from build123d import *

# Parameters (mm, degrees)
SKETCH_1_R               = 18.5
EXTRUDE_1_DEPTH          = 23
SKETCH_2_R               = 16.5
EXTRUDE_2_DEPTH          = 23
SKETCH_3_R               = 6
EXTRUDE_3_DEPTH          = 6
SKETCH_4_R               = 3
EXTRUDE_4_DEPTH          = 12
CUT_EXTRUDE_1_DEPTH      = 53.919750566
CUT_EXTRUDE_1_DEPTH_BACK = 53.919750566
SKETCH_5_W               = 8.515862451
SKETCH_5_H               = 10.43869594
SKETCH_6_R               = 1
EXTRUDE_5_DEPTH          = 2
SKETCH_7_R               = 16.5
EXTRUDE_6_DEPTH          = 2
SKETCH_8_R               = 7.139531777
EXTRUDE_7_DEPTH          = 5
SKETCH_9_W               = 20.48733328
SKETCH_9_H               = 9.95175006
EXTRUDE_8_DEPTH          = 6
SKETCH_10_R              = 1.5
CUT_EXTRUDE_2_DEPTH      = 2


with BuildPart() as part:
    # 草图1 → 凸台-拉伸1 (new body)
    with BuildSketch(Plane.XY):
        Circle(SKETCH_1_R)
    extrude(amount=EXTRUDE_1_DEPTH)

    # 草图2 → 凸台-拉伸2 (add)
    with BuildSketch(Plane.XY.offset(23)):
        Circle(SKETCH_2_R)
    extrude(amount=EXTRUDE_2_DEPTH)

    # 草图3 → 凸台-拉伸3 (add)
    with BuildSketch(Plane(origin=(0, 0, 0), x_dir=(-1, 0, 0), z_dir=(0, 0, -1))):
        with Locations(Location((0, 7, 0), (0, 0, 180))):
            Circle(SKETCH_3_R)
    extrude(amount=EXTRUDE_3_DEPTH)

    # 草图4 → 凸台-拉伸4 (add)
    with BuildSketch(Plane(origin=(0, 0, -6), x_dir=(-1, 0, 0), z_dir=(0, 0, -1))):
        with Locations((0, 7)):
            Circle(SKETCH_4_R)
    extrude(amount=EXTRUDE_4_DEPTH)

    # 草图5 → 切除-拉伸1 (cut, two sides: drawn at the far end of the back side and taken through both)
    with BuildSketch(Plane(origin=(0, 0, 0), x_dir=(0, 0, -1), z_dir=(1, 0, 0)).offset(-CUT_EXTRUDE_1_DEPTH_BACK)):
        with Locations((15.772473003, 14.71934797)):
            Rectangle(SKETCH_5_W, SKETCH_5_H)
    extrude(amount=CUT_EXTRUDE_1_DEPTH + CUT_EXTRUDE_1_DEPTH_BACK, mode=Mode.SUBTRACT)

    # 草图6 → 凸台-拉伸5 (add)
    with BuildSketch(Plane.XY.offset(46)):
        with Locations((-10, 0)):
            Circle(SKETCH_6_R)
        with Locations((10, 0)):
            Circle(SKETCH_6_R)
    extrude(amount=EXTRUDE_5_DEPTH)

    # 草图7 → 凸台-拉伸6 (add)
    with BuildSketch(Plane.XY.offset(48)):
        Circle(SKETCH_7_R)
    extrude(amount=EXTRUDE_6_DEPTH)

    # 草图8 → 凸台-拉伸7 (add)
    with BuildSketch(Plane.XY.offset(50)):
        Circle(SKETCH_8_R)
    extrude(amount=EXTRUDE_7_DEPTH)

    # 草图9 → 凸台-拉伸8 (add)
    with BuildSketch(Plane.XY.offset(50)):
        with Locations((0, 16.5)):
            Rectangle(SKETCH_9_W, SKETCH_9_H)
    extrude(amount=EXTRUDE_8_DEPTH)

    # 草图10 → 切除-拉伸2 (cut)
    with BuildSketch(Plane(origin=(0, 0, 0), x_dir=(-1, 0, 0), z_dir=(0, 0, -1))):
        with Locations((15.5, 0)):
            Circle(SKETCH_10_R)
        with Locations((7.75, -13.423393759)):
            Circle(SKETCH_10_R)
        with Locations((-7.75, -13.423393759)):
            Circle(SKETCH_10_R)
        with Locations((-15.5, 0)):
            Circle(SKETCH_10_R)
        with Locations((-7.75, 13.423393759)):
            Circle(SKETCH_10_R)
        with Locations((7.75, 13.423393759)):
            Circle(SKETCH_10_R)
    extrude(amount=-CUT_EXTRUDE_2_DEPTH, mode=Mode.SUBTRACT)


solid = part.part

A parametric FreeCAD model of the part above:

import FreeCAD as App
import Part
import Sketcher

doc = App.newDocument("Part")
body = doc.addObject("PartDesign::Body", "Body")

# Sketch on XY plane
sketch1 = body.newObject("Sketcher::SketchObject", "Sketch")
sketch1.AttachmentSupport = (doc.getObject("XY_Plane"), [""])
sketch1.MapMode = "FlatFace"
sketch1.addGeometry(Part.Circle(App.Vector(0, 0, 0), App.Vector(0, 0, 1), 18.5), False)
sketch1.addConstraint(Sketcher.Constraint("Coincident", 0, 3, -1, 1))
sketch1.addConstraint(Sketcher.Constraint("Diameter", 0, 37.0))
pad1 = body.newObject("PartDesign::Pad", "Pad")
pad1.Profile = sketch1
pad1.Length = 23

# Sketch on XY plane
sketch2 = body.newObject("Sketcher::SketchObject", "Sketch001")
sketch2.AttachmentSupport = (doc.getObject("XY_Plane"), [""])
sketch2.MapMode = "FlatFace"
sketch2.AttachmentOffset = App.Placement(App.Vector(0, 0, 23), App.Rotation())
sketch2.addGeometry(Part.Circle(App.Vector(0, 0, 0), App.Vector(0, 0, 1), 16.5), False)
sketch2.addConstraint(Sketcher.Constraint("Coincident", 0, 3, -1, 1))
sketch2.addConstraint(Sketcher.Constraint("Diameter", 0, 33.0))
pad2 = body.newObject("PartDesign::Pad", "Pad001")
pad2.Profile = sketch2
pad2.Length = 23

# Sketch on XY plane
sketch3 = body.newObject("Sketcher::SketchObject", "Sketch002")
sketch3.AttachmentSupport = (doc.getObject("XY_Plane"), [""])
sketch3.MapMode = "FlatFace"
sketch3.addGeometry(Part.Circle(App.Vector(0, 7, 0), App.Vector(0, 0, 1), 6), False)
sketch3.addConstraint(Sketcher.Constraint("PointOnObject", 0, 3, -2))
sketch3.addConstraint(Sketcher.Constraint("Diameter", 0, 12.0))
sketch3.addConstraint(Sketcher.Constraint("DistanceY", -1, 1, 0, 3, 7.0))
pad3 = body.newObject("PartDesign::Pad", "Pad002")
pad3.Profile = sketch3
pad3.Length = 6
pad3.Reversed = True

# Sketch on XY plane
sketch4 = body.newObject("Sketcher::SketchObject", "Sketch003")
sketch4.AttachmentSupport = (doc.getObject("XY_Plane"), [""])
sketch4.MapMode = "FlatFace"
sketch4.AttachmentOffset = App.Placement(App.Vector(0, 0, -6), App.Rotation())
sketch4.addGeometry(Part.Circle(App.Vector(0, 7, 0), App.Vector(0, 0, 1), 3), False)
sketch4.addConstraint(Sketcher.Constraint("PointOnObject", 0, 3, -2))
sketch4.addConstraint(Sketcher.Constraint("Diameter", 0, 6.0))
sketch4.addConstraint(Sketcher.Constraint("DistanceY", -1, 1, 0, 3, 7.0))
pad4 = body.newObject("PartDesign::Pad", "Pad003")
pad4.Profile = sketch4
pad4.Length = 12
pad4.Reversed = True

# Sketch on YZ plane
sketch5 = body.newObject("Sketcher::SketchObject", "Sketch004")
sketch5.AttachmentSupport = (doc.getObject("YZ_Plane"), [""])
sketch5.MapMode = "FlatFace"
sketch5.addGeometry(Part.LineSegment(App.Vector(19.938696, -11.514542, 0), App.Vector(9.5, -11.514542, 0)), False)
sketch5.addGeometry(Part.LineSegment(App.Vector(9.5, -11.514542, 0), App.Vector(9.5, -20.030404, 0)), False)
sketch5.addGeometry(Part.LineSegment(App.Vector(9.5, -20.030404, 0), App.Vector(19.938696, -20.030404, 0)), False)
sketch5.addGeometry(Part.LineSegment(App.Vector(19.938696, -20.030404, 0), App.Vector(19.938696, -11.514542, 0)), False)
sketch5.addConstraint(Sketcher.Constraint("Coincident", 0, 2, 1, 1))
sketch5.addConstraint(Sketcher.Constraint("Coincident", 1, 2, 2, 1))
sketch5.addConstraint(Sketcher.Constraint("Coincident", 2, 2, 3, 1))
sketch5.addConstraint(Sketcher.Constraint("Coincident", 3, 2, 0, 1))
sketch5.addConstraint(Sketcher.Constraint("Horizontal", 0))
sketch5.addConstraint(Sketcher.Constraint("Vertical", 1))
sketch5.addConstraint(Sketcher.Constraint("Horizontal", 2))
sketch5.addConstraint(Sketcher.Constraint("Vertical", 3))
sketch5.addConstraint(Sketcher.Constraint("DistanceX", -1, 1, 0, 2, 9.5))
sketch5.addConstraint(Sketcher.Constraint("DistanceX", 0, 2, 0, 1, 10.438696))
sketch5.addConstraint(Sketcher.Constraint("DistanceY", 1, 2, 1, 1, 8.515862))
sketch5.addConstraint(Sketcher.Constraint("DistanceY", 0, 2, -1, 1, 11.514542))
pocket1 = body.newObject("PartDesign::Pocket", "Pocket")
pocket1.Profile = sketch5
pocket1.Type = "ThroughAll"
pocket1.Midplane = True

# Sketch on XY plane
sketch6 = body.newObject("Sketcher::SketchObject", "Sketch005")
sketch6.AttachmentSupport = (doc.getObject("XY_Plane"), [""])
sketch6.MapMode = "FlatFace"
sketch6.AttachmentOffset = App.Placement(App.Vector(0, 0, 46), App.Rotation())
sketch6.addGeometry(Part.Circle(App.Vector(-10, 0, 0), App.Vector(0, 0, 1), 1), False)
sketch6.addGeometry(Part.Circle(App.Vector(10, 0, 0), App.Vector(0, 0, 1), 1), False)
sketch6.addConstraint(Sketcher.Constraint("Equal", 0, 1))
sketch6.addConstraint(Sketcher.Constraint("Symmetric", 0, 3, 1, 3, -1, 1))
sketch6.addConstraint(Sketcher.Constraint("PointOnObject", 0, 3, -1))
sketch6.addConstraint(Sketcher.Constraint("Diameter", 0, 2.0))
sketch6.addConstraint(Sketcher.Constraint("DistanceX", 0, 3, -1, 1, 10.0))
pad5 = body.newObject("PartDesign::Pad", "Pad004")
pad5.Profile = sketch6
pad5.Length = 2

# Sketch on XY plane
sketch7 = body.newObject("Sketcher::SketchObject", "Sketch006")
sketch7.AttachmentSupport = (doc.getObject("XY_Plane"), [""])
sketch7.MapMode = "FlatFace"
sketch7.AttachmentOffset = App.Placement(App.Vector(0, 0, 48), App.Rotation())
sketch7.addGeometry(Part.Circle(App.Vector(0, 0, 0), App.Vector(0, 0, 1), 16.5), False)
sketch7.addConstraint(Sketcher.Constraint("Coincident", 0, 3, -1, 1))
sketch7.addConstraint(Sketcher.Constraint("Diameter", 0, 33.0))
pad6 = body.newObject("PartDesign::Pad", "Pad005")
pad6.Profile = sketch7
pad6.Length = 2

# Sketch on XY plane
sketch8 = body.newObject("Sketcher::SketchObject", "Sketch007")
sketch8.AttachmentSupport = (doc.getObject("XY_Plane"), [""])
sketch8.MapMode = "FlatFace"
sketch8.AttachmentOffset = App.Placement(App.Vector(0, 0, 50), App.Rotation())
sketch8.addGeometry(Part.Circle(App.Vector(0, 0, 0), App.Vector(0, 0, 1), 7.139532), False)
sketch8.addConstraint(Sketcher.Constraint("Coincident", 0, 3, -1, 1))
sketch8.addConstraint(Sketcher.Constraint("Diameter", 0, 14.279064))
pad7 = body.newObject("PartDesign::Pad", "Pad006")
pad7.Profile = sketch8
pad7.Length = 5

# Sketch on XY plane
sketch9 = body.newObject("Sketcher::SketchObject", "Sketch008")
sketch9.AttachmentSupport = (doc.getObject("XY_Plane"), [""])
sketch9.MapMode = "FlatFace"
sketch9.AttachmentOffset = App.Placement(App.Vector(0, 0, 50), App.Rotation())
sketch9.addGeometry(Part.LineSegment(App.Vector(-10.243667, 21.475875, 0), App.Vector(-10.243667, 11.524125, 0)), False)
sketch9.addGeometry(Part.LineSegment(App.Vector(-10.243667, 11.524125, 0), App.Vector(10.243667, 11.524125, 0)), False)
sketch9.addGeometry(Part.LineSegment(App.Vector(10.243667, 11.524125, 0), App.Vector(10.243667, 21.475875, 0)), False)
sketch9.addGeometry(Part.LineSegment(App.Vector(10.243667, 21.475875, 0), App.Vector(-10.243667, 21.475875, 0)), False)
sketch9.addConstraint(Sketcher.Constraint("Coincident", 0, 2, 1, 1))
sketch9.addConstraint(Sketcher.Constraint("Coincident", 1, 2, 2, 1))
sketch9.addConstraint(Sketcher.Constraint("Coincident", 2, 2, 3, 1))
sketch9.addConstraint(Sketcher.Constraint("Coincident", 3, 2, 0, 1))
sketch9.addConstraint(Sketcher.Constraint("Vertical", 0))
sketch9.addConstraint(Sketcher.Constraint("Horizontal", 1))
sketch9.addConstraint(Sketcher.Constraint("Vertical", 2))
sketch9.addConstraint(Sketcher.Constraint("Horizontal", 3))
sketch9.addConstraint(Sketcher.Constraint("DistanceY", 0, 2, 0, 1, 9.95175))
sketch9.addConstraint(Sketcher.Constraint("DistanceX", 1, 1, 1, 2, 20.487333))
sketch9.addConstraint(Sketcher.Constraint("DistanceX", 0, 2, -1, 1, 10.243667))
sketch9.addConstraint(Sketcher.Constraint("DistanceY", -1, 1, 0, 2, 11.524125))
pad8 = body.newObject("PartDesign::Pad", "Pad007")
pad8.Profile = sketch9
pad8.Length = 6

# Sketch on XY plane
sketch10 = body.newObject("Sketcher::SketchObject", "Sketch009")
sketch10.AttachmentSupport = (doc.getObject("XY_Plane"), [""])
sketch10.MapMode = "FlatFace"
sketch10.addGeometry(Part.Circle(App.Vector(-15.5, 0, 0), App.Vector(0, 0, 1), 1.5), False)
sketch10.addGeometry(Part.Circle(App.Vector(-7.75, -13.423394, 0), App.Vector(0, 0, 1), 1.5), False)
sketch10.addGeometry(Part.Circle(App.Vector(7.75, -13.423394, 0), App.Vector(0, 0, 1), 1.5), False)
sketch10.addGeometry(Part.Circle(App.Vector(15.5, 0, 0), App.Vector(0, 0, 1), 1.5), False)
sketch10.addGeometry(Part.Circle(App.Vector(7.75, 13.423394, 0), App.Vector(0, 0, 1), 1.5), False)
sketch10.addGeometry(Part.Circle(App.Vector(-7.75, 13.423394, 0), App.Vector(0, 0, 1), 1.5), False)
sketch10.addConstraint(Sketcher.Constraint("Equal", 0, 1))
sketch10.addConstraint(Sketcher.Constraint("Equal", 1, 2))
sketch10.addConstraint(Sketcher.Constraint("Equal", 2, 3))
sketch10.addConstraint(Sketcher.Constraint("Equal", 3, 4))
sketch10.addConstraint(Sketcher.Constraint("Equal", 4, 5))
sketch10.addConstraint(Sketcher.Constraint("Symmetric", 0, 3, 3, 3, -1, 1))
sketch10.addConstraint(Sketcher.Constraint("Symmetric", 1, 3, 4, 3, -1, 1))
sketch10.addConstraint(Sketcher.Constraint("Symmetric", 2, 3, 5, 3, -1, 1))
sketch10.addConstraint(Sketcher.Constraint("Symmetric", 1, 3, 2, 3, -2))
sketch10.addConstraint(Sketcher.Constraint("PointOnObject", 0, 3, -1))
sketch10.addConstraint(Sketcher.Constraint("Diameter", 0, 3.0))
sketch10.addConstraint(Sketcher.Constraint("DistanceX", 0, 3, 3, 3, 31.0))
sketch10.addConstraint(Sketcher.Constraint("DistanceX", 1, 3, 2, 3, 15.5))
sketch10.addConstraint(Sketcher.Constraint("DistanceY", 1, 3, -1, 1, 13.423394))
pocket2 = body.newObject("PartDesign::Pocket", "Pocket001")
pocket2.Profile = sketch10
pocket2.Length = 2
pocket2.Reversed = True

doc.recompute()
